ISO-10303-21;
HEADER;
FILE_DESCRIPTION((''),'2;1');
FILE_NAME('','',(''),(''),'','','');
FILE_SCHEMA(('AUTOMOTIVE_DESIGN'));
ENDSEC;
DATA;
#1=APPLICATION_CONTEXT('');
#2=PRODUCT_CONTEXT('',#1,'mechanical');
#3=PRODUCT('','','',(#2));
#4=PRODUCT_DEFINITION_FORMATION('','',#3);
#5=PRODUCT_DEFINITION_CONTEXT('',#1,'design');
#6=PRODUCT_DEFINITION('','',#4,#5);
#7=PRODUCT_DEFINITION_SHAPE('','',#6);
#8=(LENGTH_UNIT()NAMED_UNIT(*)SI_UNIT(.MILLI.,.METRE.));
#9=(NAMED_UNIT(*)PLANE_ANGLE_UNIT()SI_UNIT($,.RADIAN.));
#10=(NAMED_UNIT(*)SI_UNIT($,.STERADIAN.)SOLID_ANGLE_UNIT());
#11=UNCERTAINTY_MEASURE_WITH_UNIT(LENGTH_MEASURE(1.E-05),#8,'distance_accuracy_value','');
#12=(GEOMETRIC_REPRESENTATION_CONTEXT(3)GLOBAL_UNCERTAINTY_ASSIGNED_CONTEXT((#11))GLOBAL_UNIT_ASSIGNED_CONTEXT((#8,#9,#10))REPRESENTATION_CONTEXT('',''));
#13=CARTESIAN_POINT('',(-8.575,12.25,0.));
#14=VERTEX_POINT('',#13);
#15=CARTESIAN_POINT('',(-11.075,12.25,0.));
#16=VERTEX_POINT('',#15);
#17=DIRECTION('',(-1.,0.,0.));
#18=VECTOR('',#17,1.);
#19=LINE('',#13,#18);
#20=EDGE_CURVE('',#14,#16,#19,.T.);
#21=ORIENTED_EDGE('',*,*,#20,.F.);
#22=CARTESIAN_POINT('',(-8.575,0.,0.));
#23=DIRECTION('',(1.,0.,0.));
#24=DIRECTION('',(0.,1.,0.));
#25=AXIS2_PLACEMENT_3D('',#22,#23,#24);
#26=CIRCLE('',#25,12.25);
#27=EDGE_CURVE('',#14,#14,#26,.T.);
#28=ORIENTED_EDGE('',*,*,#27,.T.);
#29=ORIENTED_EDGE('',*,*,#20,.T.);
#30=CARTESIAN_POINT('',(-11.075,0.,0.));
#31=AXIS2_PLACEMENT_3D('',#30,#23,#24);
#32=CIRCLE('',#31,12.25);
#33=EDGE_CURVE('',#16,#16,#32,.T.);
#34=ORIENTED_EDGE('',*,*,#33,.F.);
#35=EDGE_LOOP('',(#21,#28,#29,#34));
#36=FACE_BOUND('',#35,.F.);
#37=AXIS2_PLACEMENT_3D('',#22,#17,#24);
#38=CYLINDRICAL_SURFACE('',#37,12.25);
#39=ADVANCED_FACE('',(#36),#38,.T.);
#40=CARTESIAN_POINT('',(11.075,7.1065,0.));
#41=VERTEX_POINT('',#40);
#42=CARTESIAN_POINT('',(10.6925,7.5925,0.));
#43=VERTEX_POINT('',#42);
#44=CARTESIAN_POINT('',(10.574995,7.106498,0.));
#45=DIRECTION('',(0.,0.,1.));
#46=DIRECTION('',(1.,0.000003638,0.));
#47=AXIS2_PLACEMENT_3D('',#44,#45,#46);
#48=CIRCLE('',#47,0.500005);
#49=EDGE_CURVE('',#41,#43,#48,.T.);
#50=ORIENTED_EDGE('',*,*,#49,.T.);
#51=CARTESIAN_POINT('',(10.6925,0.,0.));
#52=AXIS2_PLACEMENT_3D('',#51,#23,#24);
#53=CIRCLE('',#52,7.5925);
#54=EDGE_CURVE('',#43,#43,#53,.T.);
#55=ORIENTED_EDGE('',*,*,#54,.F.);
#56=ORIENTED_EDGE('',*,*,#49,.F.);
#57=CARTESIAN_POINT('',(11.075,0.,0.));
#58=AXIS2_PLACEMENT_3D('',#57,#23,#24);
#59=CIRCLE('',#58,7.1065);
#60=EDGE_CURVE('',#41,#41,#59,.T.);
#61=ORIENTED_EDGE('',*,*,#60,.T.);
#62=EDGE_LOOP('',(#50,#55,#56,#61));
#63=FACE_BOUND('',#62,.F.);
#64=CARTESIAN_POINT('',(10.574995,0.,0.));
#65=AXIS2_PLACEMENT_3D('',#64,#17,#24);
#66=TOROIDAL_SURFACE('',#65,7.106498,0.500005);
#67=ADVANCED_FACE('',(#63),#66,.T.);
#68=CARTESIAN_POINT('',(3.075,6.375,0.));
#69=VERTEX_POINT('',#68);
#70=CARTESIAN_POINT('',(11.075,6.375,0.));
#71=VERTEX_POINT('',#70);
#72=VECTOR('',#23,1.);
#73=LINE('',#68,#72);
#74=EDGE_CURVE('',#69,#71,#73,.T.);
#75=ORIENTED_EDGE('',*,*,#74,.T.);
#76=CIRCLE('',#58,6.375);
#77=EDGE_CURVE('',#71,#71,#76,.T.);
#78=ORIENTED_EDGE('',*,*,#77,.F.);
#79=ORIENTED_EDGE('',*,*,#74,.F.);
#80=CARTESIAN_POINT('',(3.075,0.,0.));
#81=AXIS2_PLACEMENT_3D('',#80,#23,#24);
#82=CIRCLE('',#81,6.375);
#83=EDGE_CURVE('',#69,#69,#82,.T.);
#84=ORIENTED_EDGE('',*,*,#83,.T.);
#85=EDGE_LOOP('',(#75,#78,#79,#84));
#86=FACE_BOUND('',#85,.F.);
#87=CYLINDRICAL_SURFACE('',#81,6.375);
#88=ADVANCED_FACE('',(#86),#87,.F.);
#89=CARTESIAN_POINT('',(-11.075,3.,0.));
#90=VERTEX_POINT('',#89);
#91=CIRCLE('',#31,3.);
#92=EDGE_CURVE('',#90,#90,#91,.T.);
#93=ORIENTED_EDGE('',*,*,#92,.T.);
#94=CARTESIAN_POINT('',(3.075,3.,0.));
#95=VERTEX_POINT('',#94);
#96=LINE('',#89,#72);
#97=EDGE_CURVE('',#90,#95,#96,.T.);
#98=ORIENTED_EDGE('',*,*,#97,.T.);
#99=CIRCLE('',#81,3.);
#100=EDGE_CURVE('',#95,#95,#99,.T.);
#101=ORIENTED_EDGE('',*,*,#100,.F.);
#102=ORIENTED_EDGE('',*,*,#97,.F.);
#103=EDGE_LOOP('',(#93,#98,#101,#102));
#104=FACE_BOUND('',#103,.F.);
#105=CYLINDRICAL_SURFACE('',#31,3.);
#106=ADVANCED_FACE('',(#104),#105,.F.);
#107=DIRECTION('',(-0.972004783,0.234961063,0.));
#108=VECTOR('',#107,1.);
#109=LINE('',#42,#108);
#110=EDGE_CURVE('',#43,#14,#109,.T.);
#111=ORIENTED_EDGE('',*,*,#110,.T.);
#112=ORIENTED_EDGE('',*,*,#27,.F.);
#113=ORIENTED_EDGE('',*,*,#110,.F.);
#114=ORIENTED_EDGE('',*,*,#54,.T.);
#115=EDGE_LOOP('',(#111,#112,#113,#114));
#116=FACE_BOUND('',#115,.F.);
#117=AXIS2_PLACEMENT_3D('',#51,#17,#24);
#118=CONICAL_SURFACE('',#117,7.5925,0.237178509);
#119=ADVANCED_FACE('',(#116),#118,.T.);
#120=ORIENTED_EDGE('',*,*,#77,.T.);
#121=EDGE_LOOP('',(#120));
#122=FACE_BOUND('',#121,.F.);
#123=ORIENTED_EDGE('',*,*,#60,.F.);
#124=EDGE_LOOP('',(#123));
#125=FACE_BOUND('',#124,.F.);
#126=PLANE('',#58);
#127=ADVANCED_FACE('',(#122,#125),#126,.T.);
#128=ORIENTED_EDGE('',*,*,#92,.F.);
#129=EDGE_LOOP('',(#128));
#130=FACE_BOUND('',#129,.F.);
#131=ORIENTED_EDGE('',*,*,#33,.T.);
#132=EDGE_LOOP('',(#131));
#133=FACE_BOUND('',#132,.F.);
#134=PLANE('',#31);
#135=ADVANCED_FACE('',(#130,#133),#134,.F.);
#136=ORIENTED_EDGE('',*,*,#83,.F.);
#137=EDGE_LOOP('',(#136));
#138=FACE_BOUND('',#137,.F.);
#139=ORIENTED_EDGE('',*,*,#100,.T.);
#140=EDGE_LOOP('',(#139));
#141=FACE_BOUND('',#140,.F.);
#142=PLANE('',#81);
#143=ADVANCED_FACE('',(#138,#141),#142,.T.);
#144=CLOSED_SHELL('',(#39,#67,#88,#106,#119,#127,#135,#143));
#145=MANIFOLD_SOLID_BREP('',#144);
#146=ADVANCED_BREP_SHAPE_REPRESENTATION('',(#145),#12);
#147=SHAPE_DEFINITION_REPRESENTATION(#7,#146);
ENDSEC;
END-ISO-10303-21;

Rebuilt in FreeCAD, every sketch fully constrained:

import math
import FreeCAD as App
import Part
import Sketcher
from FreeCAD import Vector
Q = App.Units.Quantity

doc = App.newDocument("Part")
body = doc.addObject("PartDesign::Body", "Body")

# Sketch on XY plane
sketch1 = body.newObject("Sketcher::SketchObject", "Sketch")
sketch1.AttachmentSupport = (doc.getObject("XY_Plane"), [""])
sketch1.MapMode = "FlatFace"
sketch1.addGeometry(Part.LineSegment(Vector(-11.1, 12.2, 0), Vector(-11.1, 3, 0)), False)
sketch1.addGeometry(Part.LineSegment(Vector(-11.1, 3, 0), Vector(3.1, 3, 0)), False)
sketch1.addGeometry(Part.LineSegment(Vector(3.1, 3, 0), Vector(3.1, 6.4, 0)), False)
sketch1.addGeometry(Part.LineSegment(Vector(3.1, 6.4, 0), Vector(11.1, 6.4, 0)), False)
sketch1.addGeometry(Part.LineSegment(Vector(11.1, 6.4, 0), Vector(11.1, 7.1, 0)), False)
sketch1.addGeometry(Part.ArcOfCircle(Part.Circle(Vector(10.6, 7.1, 0), Vector(0, 0, 1), 0.5), math.radians(0), math.radians(76)), False)
sketch1.addGeometry(Part.LineSegment(Vector(10.7, 7.6, 0), Vector(-8.6, 12.2, 0)), False)
sketch1.addGeometry(Part.LineSegment(Vector(-8.6, 12.2, 0), Vector(-11.1, 12.2, 0)), False)
sketch1.addConstraint(Sketcher.Constraint("Coincident", 0, 2, 1, 1))
sketch1.addConstraint(Sketcher.Constraint("Coincident", 1, 2, 2, 1))
sketch1.addConstraint(Sketcher.Constraint("Coincident", 2, 2, 3, 1))
sketch1.addConstraint(Sketcher.Constraint("Coincident", 3, 2, 4, 1))
sketch1.addConstraint(Sketcher.Constraint("Tangent", 4, 2, 5, 1))
sketch1.addConstraint(Sketcher.Constraint("Tangent", 5, 2, 6, 1))
sketch1.addConstraint(Sketcher.Constraint("Coincident", 6, 2, 7, 1))
sketch1.addConstraint(Sketcher.Constraint("Coincident", 7, 2, 0, 1))
sketch1.addConstraint(Sketcher.Constraint("Vertical", 0))
sketch1.addConstraint(Sketcher.Constraint("Horizontal", 1))
sketch1.addConstraint(Sketcher.Constraint("Vertical", 2))
sketch1.addConstraint(Sketcher.Constraint("Horizontal", 3))
sketch1.addConstraint(Sketcher.Constraint("Vertical", 4))
sketch1.addConstraint(Sketcher.Constraint("Horizontal", 7))
sketch1.addConstraint(Sketcher.Constraint("Radius", 5, Q("0.5 mm")))
sketch1.addConstraint(Sketcher.Constraint("DistanceX", 3, 1, 3, 2, Q("8 mm")))
sketch1.addConstraint(Sketcher.Constraint("DistanceX", 7, 2, 7, 1, Q("2.5 mm")))
sketch1.addConstraint(Sketcher.Constraint("DistanceX", 0, 2, 3, 2, Q("22.15 mm")))
sketch1.addConstraint(Sketcher.Constraint("DistanceX", 0, 2, -1, 1, Q("11.075 mm")))
sketch1.addConstraint(Sketcher.Constraint("DistanceY", -1, 1, 0, 2, Q("3 mm")))
sketch1.addConstraint(Sketcher.Constraint("DistanceY", 0, 2, 0, 1, Q("9.25 mm")))
sketch1.addConstraint(Sketcher.Constraint("Angle", 6, Q("166.4107 deg")))
sketch1.addConstraint(Sketcher.Constraint("DistanceY", 2, 1, 2, 2, Q("3.375 mm")))
revolution = body.newObject("PartDesign::Revolution", "Revolution")
revolution.Profile = sketch1
revolution.ReferenceAxis = (sketch1, ["H_Axis"])
revolution.Angle = 360

doc.recompute()
